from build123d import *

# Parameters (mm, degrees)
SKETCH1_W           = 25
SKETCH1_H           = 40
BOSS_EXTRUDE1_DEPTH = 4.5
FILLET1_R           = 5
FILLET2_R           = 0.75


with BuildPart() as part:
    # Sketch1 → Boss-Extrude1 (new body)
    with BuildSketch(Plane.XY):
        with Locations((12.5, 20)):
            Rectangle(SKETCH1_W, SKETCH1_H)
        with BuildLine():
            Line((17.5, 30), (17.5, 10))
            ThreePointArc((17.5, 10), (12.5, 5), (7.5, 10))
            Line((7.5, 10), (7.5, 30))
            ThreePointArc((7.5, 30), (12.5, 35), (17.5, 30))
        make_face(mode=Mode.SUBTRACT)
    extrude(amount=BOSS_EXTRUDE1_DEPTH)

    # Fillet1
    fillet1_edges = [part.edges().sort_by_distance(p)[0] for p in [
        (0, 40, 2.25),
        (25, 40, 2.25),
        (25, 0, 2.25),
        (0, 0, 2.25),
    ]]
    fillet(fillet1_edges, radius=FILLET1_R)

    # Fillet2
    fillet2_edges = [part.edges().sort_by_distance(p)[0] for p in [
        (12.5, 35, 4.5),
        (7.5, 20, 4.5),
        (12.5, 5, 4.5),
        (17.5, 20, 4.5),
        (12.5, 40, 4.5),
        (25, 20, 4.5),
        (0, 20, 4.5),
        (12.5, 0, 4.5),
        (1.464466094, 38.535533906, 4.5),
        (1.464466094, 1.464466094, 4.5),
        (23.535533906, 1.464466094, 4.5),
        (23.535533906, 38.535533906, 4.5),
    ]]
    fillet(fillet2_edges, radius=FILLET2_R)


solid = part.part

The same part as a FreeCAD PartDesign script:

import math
import FreeCAD as App
import Part
import Sketcher
from FreeCAD import Vector


def edges_at(feature, points):
    """Names of the edges that pass closest to the given points."""
    edges = feature.Shape.Edges
    near = lambda p: min(range(len(edges)), key=lambda i: edges[i].distToShape(Part.Vertex(*p))[0])
    return sorted({f"Edge{near(p) + 1}" for p in points})


def add_polygon(sketch, points):
    """Adds a closed chain of lines whose ends are joined by coincident constraints."""
    first, n = sketch.GeometryCount, len(points)
    for a, b in zip(points, points[1:] + points[:1]):
        sketch.addGeometry(Part.LineSegment(App.Vector(*a, 0), App.Vector(*b, 0)), False)
    for i in range(n):
        sketch.addConstraint(Sketcher.Constraint("Coincident", first + i, 2, first + (i + 1) % n, 1))

doc = App.newDocument("Part")
body = doc.addObject("PartDesign::Body", "Body")

# Sketch on XY plane
sketch1 = doc.addObject("Sketcher::SketchObject", "Sketch")
body.addObject(sketch1)
sketch1.AttachmentSupport = (doc.XY_Plane, [""])
sketch1.MapMode = "FlatFace"
add_polygon(sketch1, [(0, 40), (0, 0), (25, 0), (25, 40)])  # lines 0-3
sketch1.addGeometry(Part.ArcOfCircle(Part.Circle(Vector(12, 30, 0), Vector(0, 0, 1), 5), math.radians(0), math.radians(180)), False)  # 4
sketch1.addGeometry(Part.LineSegment(Vector(18, 30, 0), Vector(18, 10, 0)), False)  # 5
sketch1.addGeometry(Part.ArcOfCircle(Part.Circle(Vector(12, 10, 0), Vector(0, 0, 1), 5), math.radians(180), math.radians(360)), False)  # 6
sketch1.addGeometry(Part.LineSegment(Vector(8, 10, 0), Vector(8, 30, 0)), False)  # 7
sketch1.addConstraint([
    Sketcher.Constraint("Tangent", 4, 1, 5, 1),
    Sketcher.Constraint("Tangent", 5, 2, 6, 2),
    Sketcher.Constraint("Tangent", 6, 1, 7, 1),
    Sketcher.Constraint("Tangent", 7, 2, 4, 2),
    Sketcher.Constraint("Vertical", 0),
    Sketcher.Constraint("Horizontal", 1),
    Sketcher.Constraint("Vertical", 2),
    Sketcher.Constraint("Horizontal", 3),
    Sketcher.Constraint("Vertical", 5),
    Sketcher.Constraint("Vertical", 7),
    Sketcher.Constraint("Coincident", 0, 2, -1, 1),
    Sketcher.Constraint("Radius", 4, 5.0),
    Sketcher.Constraint("DistanceX", 1, 1, 1, 2, 25.0),
    Sketcher.Constraint("DistanceY", 0, 2, 0, 1, 40.0),
    Sketcher.Constraint("DistanceY", 5, 2, 5, 1, 20.0),
    Sketcher.Constraint("DistanceY", -1, 1, 4, 3, 30.0),
    Sketcher.Constraint("DistanceX", -1, 1, 4, 3, 12.5),
])
pad1 = doc.addObject("PartDesign::Pad", "Pad")
body.addObject(pad1)
pad1.Profile = sketch1
pad1.Length = 4.5
doc.recompute()

fillet = doc.addObject("PartDesign::Fillet", "Fillet")
body.addObject(fillet)
fillet.Base = (pad1, edges_at(pad1, [
    (0, 40, 2.25),
    (25, 40, 2.25),
    (25, 0, 2.25),
    (0, 0, 2.25),
]))
fillet.Radius = 5
doc.recompute()

fillet2 = doc.addObject("PartDesign::Fillet", "Fillet001")
body.addObject(fillet2)
fillet2.Base = (fillet, edges_at(fillet, [
    (12.5, 35, 4.5),
    (7.5, 20, 4.5),
    (12.5, 5, 4.5),
    (17.5, 20, 4.5),
    (12.5, 40, 4.5),
    (25, 20, 4.5),
    (0, 20, 4.5),
    (12.5, 0, 4.5),
    (1.464, 38.536, 4.5),
    (1.464, 1.464, 4.5),
    (23.536, 1.464, 4.5),
    (23.536, 38.536, 4.5),
]))
fillet2.Radius = 0.75

doc.recompute()
